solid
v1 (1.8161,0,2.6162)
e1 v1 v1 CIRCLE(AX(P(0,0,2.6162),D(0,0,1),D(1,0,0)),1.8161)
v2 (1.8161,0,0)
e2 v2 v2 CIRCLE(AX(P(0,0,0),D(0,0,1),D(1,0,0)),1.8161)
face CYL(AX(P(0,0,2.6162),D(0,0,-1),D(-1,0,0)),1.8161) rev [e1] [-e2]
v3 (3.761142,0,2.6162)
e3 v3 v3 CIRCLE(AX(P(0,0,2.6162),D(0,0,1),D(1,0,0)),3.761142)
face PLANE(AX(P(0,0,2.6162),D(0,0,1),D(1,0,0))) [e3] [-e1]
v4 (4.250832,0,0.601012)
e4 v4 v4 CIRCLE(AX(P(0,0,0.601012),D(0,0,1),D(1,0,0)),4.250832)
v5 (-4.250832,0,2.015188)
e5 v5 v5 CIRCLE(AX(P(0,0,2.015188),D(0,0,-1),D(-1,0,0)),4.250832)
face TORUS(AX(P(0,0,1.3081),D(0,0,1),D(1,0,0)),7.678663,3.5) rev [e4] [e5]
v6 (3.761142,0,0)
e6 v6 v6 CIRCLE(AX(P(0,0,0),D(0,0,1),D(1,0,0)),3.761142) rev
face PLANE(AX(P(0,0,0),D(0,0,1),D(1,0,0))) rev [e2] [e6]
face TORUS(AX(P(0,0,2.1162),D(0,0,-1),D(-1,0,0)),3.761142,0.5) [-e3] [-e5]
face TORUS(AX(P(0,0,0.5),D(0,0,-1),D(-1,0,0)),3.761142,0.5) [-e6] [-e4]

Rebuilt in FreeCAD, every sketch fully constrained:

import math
import FreeCAD as App
import Part
import Sketcher

V = App.Vector
Q = App.Units.Quantity


def edges_at(feature, points):
    """Names of the edges that pass closest to the given points."""
    edges = feature.Shape.Edges
    near = lambda p: min(range(len(edges)), key=lambda i: edges[i].distToShape(Part.Vertex(*p))[0])
    return sorted({f"Edge{near(p) + 1}" for p in points})

doc = App.newDocument("Part")
body = doc.addObject("PartDesign::Body", "Body")

sketch1 = body.newObject("Sketcher::SketchObject", "Sketch")
sketch1.AttachmentSupport = (doc.getObject("XY_Plane"), [""])
sketch1.MapMode = "FlatFace"
sketch1.addGeometry([
    Part.Circle(V(0, 0, 0), V(0, 0, 1), 4.4323),
    Part.Circle(V(0, 0, 0), V(0, 0, 1), 1.8161),
], False)
sketch1.addConstraint([
    Sketcher.Constraint("Coincident", 0, 3, -1, 1),
    Sketcher.Constraint("Coincident", 1, 3, -1, 1),
    Sketcher.Constraint("Diameter", 0, Q("0.349 in")),
    Sketcher.Constraint("Diameter", 1, Q("0.143 in")),
])
pad1 = body.newObject("PartDesign::Pad", "Pad")
pad1.Profile = sketch1
pad1.Length = Q("0.103 in")

sketch2 = body.newObject("Sketcher::SketchObject", "Sketch001")
sketch2.AttachmentSupport = (doc.getObject("YZ_Plane"), [""])
sketch2.MapMode = "FlatFace"
sketch2.addGeometry([
    Part.LineSegment(V(4.4323, 0, 0), V(4.4323, 2.6162, 0)),
    Part.ArcOfCircle(Part.Circle(V(7.678663, 1.3081, 0), V(0, 0, 1), 3.5), math.radians(158.053365), math.radians(201.946635)),
], False)
sketch2.addConstraint([
    Sketcher.Constraint("Coincident", 0, 1, 1, 2),
    Sketcher.Constraint("Coincident", 1, 1, 0, 2),
    Sketcher.Constraint("Vertical", 0),
    Sketcher.Constraint("PointOnObject", 0, 1, -1),
    Sketcher.Constraint("DistanceY", 0, 1, 0, 2, Q("0.103 in")),
    Sketcher.Constraint("Radius", 1, 3.5),
    Sketcher.Constraint("DistanceX", -1, 1, 0, 1, Q("0.1745 in")),
])
groove = body.newObject("PartDesign::Groove", "Groove")
groove.Profile = sketch2
groove.ReferenceAxis = (sketch2, ["V_Axis"])
groove.Angle = 360
doc.recompute()

fillet = body.newObject("PartDesign::Fillet", "Fillet")
fillet.Base = (groove, edges_at(groove, [(-4.432, 0, 2.616), (-4.432, 0, 0)]))
fillet.Radius = 0.5

doc.recompute()
